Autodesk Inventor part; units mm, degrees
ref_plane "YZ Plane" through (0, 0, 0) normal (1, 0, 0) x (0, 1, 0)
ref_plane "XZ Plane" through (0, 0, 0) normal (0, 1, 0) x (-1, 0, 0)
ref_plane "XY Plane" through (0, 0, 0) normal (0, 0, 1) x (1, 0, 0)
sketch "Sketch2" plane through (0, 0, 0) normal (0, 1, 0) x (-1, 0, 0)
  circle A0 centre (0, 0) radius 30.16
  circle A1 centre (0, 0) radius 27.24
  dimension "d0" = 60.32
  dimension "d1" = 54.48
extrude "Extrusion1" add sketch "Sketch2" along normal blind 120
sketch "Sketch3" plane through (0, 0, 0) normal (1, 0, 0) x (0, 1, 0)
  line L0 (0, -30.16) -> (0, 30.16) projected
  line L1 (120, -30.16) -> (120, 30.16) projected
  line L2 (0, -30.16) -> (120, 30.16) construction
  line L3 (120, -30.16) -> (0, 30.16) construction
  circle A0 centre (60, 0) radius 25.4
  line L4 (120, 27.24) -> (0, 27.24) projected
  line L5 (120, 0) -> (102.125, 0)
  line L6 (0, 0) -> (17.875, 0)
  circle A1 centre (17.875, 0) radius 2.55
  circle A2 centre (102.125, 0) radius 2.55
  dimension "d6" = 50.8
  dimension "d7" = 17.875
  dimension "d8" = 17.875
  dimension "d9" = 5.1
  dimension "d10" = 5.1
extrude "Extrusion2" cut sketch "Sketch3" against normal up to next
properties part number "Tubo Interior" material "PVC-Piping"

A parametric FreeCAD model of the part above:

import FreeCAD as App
import Part
import Sketcher
Q = App.Units.Quantity

doc = App.newDocument("Part")
body = doc.addObject("PartDesign::Body", "Body")

sketch1 = body.newObject("Sketcher::SketchObject", "Sketch")
sketch1.AttachmentSupport = (doc.getObject("XZ_Plane"), [""])
sketch1.MapMode = "FlatFace"
sketch1.addGeometry([
    Part.Circle(App.Vector(0, 0, 0), App.Vector(0, 0, 1), 30),
    Part.Circle(App.Vector(0, 0, 0), App.Vector(0, 0, 1), 27),
], False)
sketch1.addConstraint([
    Sketcher.Constraint("Coincident", 0, 3, -1, 1),
    Sketcher.Constraint("Coincident", 1, 3, -1, 1),
    Sketcher.Constraint("Diameter", 0, Q("60.32 mm")),
    Sketcher.Constraint("Diameter", 1, Q("54.48 mm")),
])
pad1 = body.newObject("PartDesign::Pad", "Pad")
pad1.Profile = sketch1
pad1.Length = 120
pad1.Reversed = True

sketch2 = body.newObject("Sketcher::SketchObject", "Sketch001")
sketch2.AttachmentSupport = (doc.getObject("YZ_Plane"), [""])
sketch2.MapMode = "FlatFace"
sketch2.addGeometry([
    Part.Circle(App.Vector(102.1, 0, 0), App.Vector(0, 0, 1), 2.5),
    Part.Circle(App.Vector(17.9, 0, 0), App.Vector(0, 0, 1), 2.5),
    Part.Circle(App.Vector(60, 0, 0), App.Vector(0, 0, 1), 25.4),
], False)
sketch2.addConstraint([
    Sketcher.Constraint("Equal", 0, 1),
    Sketcher.Constraint("PointOnObject", 0, 3, -1),
    Sketcher.Constraint("PointOnObject", 1, 3, -1),
    Sketcher.Constraint("PointOnObject", 2, 3, -1),
    Sketcher.Constraint("Diameter", 0, Q("5.1 mm")),
    Sketcher.Constraint("Diameter", 2, Q("50.8 mm")),
    Sketcher.Constraint("DistanceX", -1, 1, 1, 3, Q("17.875 mm")),
    Sketcher.Constraint("DistanceX", -1, 1, 2, 3, Q("60 mm")),
    Sketcher.Constraint("DistanceX", 1, 3, 0, 3, Q("84.25 mm")),
])
pocket1 = body.newObject("PartDesign::Pocket", "Pocket")
pocket1.Profile = sketch2
pocket1.Length = 30.16

doc.recompute()
